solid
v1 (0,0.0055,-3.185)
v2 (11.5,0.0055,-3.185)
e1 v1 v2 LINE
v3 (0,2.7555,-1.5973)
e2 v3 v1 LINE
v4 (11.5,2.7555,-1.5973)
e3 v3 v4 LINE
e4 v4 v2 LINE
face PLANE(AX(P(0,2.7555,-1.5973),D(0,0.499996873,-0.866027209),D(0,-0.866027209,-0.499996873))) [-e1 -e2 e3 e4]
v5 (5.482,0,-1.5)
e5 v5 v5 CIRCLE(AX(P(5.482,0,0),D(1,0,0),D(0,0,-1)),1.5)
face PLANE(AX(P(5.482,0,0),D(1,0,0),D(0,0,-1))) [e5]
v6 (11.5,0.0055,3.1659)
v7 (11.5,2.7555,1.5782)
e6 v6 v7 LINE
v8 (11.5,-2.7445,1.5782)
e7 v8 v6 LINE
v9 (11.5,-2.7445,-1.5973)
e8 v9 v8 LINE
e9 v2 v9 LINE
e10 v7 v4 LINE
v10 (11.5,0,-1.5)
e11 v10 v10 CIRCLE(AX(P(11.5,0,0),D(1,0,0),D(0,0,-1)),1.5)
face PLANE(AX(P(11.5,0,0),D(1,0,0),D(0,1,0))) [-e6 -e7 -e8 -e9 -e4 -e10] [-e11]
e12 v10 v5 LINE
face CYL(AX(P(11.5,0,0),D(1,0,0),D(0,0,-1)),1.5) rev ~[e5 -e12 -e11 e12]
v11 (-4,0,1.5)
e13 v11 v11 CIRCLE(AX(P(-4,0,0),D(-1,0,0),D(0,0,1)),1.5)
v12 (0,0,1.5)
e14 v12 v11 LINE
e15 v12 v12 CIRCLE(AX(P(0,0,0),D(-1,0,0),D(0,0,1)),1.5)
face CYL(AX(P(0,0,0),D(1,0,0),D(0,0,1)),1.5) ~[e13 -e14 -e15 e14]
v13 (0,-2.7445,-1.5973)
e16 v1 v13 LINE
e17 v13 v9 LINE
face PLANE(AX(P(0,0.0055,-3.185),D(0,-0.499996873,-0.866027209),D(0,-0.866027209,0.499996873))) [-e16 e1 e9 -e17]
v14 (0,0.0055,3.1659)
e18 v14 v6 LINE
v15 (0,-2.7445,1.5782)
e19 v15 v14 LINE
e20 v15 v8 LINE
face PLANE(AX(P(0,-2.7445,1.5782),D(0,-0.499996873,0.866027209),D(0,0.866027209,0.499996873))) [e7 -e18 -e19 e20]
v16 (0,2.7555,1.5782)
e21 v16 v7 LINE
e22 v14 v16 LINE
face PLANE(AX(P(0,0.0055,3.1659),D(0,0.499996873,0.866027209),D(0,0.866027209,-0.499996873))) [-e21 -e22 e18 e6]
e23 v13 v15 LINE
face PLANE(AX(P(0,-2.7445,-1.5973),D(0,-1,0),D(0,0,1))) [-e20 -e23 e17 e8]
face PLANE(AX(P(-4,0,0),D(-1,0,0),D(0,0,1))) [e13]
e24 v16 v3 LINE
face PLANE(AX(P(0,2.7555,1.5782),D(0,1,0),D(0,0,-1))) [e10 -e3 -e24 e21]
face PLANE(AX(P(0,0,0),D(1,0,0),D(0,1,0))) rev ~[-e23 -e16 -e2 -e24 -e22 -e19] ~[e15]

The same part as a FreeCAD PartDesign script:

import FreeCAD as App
import Part
import Sketcher
from FreeCAD import Vector
Q = App.Units.Quantity


def add_polygon(sketch, points):
    """Adds a closed chain of lines whose ends are joined by coincident constraints."""
    first, n = sketch.GeometryCount, len(points)
    for a, b in zip(points, points[1:] + points[:1]):
        sketch.addGeometry(Part.LineSegment(App.Vector(*a, 0), App.Vector(*b, 0)), False)
    for i in range(n):
        sketch.addConstraint(Sketcher.Constraint("Coincident", first + i, 2, first + (i + 1) % n, 1))

doc = App.newDocument("Part")
body = doc.addObject("PartDesign::Body", "Body")

sketch1 = doc.addObject("Sketcher::SketchObject", "Sketch")
body.addObject(sketch1)
sketch1.AttachmentSupport = (doc.YZ_Plane, [""])
sketch1.MapMode = "FlatFace"
add_polygon(sketch1, [(2.8, 1.6), (0, 3.2), (-2.7, 1.6), (-2.7, -1.6), (0, -3.2), (2.8, -1.6)])
sketch1.addConstraint([
    Sketcher.Constraint("Vertical", 2),
    Sketcher.Constraint("Vertical", 5),
    Sketcher.Constraint("Parallel", 0, 3),
    Sketcher.Constraint("Parallel", 1, 4),
    Sketcher.Constraint("Horizontal", 2, 2, 4, 2),
    Sketcher.Constraint("Horizontal", 1, 2, 5, 2),
    Sketcher.Constraint("Vertical", 0, 2, 3, 2),
    Sketcher.Constraint("DistanceX", 2, 2, 4, 2, 5.5),
    Sketcher.Constraint("Angle", 0, Q("150.0002 deg")),
    Sketcher.Constraint("DistanceY", 2, 2, 2, 1, 3.1755),
    Sketcher.Constraint("DistanceY", -1, 1, 0, 2, 3.166),
    Sketcher.Constraint("DistanceX", -1, 1, 0, 2, 0.0055),
])
pad1 = doc.addObject("PartDesign::Pad", "Pad")
body.addObject(pad1)
pad1.Profile = sketch1
pad1.Length = 11.5

sketch2 = doc.addObject("Sketcher::SketchObject", "Sketch001")
body.addObject(sketch2)
sketch2.AttachmentSupport = (doc.YZ_Plane, [""])
sketch2.MapMode = "FlatFace"
sketch2.addGeometry(Part.Circle(Vector(0, 0, 0), Vector(0, 0, 1), 1.5), False)
sketch2.addConstraint([
    Sketcher.Constraint("Coincident", 0, 3, -1, 1),
    Sketcher.Constraint("Diameter", 0, 3.0),
])
pad2 = doc.addObject("PartDesign::Pad", "Pad001")
body.addObject(pad2)
pad2.Profile = sketch2
pad2.Length = 4
pad2.Reversed = True

sketch3 = doc.addObject("Sketcher::SketchObject", "Sketch002")
body.addObject(sketch3)
sketch3.AttachmentSupport = (doc.YZ_Plane, [""])
sketch3.MapMode = "FlatFace"
sketch3.AttachmentOffset = App.Placement(Vector(0, 0, 11.5), App.Rotation())
sketch3.addGeometry(Part.Circle(Vector(0, 0, 0), Vector(0, 0, 1), 1.5), False)
sketch3.addConstraint([
    Sketcher.Constraint("Coincident", 0, 3, -1, 1),
    Sketcher.Constraint("Diameter", 0, 3.0),
])
pocket1 = doc.addObject("PartDesign::Pocket", "Pocket")
body.addObject(pocket1)
pocket1.Profile = sketch3
pocket1.Length = 6.018

doc.recompute()
